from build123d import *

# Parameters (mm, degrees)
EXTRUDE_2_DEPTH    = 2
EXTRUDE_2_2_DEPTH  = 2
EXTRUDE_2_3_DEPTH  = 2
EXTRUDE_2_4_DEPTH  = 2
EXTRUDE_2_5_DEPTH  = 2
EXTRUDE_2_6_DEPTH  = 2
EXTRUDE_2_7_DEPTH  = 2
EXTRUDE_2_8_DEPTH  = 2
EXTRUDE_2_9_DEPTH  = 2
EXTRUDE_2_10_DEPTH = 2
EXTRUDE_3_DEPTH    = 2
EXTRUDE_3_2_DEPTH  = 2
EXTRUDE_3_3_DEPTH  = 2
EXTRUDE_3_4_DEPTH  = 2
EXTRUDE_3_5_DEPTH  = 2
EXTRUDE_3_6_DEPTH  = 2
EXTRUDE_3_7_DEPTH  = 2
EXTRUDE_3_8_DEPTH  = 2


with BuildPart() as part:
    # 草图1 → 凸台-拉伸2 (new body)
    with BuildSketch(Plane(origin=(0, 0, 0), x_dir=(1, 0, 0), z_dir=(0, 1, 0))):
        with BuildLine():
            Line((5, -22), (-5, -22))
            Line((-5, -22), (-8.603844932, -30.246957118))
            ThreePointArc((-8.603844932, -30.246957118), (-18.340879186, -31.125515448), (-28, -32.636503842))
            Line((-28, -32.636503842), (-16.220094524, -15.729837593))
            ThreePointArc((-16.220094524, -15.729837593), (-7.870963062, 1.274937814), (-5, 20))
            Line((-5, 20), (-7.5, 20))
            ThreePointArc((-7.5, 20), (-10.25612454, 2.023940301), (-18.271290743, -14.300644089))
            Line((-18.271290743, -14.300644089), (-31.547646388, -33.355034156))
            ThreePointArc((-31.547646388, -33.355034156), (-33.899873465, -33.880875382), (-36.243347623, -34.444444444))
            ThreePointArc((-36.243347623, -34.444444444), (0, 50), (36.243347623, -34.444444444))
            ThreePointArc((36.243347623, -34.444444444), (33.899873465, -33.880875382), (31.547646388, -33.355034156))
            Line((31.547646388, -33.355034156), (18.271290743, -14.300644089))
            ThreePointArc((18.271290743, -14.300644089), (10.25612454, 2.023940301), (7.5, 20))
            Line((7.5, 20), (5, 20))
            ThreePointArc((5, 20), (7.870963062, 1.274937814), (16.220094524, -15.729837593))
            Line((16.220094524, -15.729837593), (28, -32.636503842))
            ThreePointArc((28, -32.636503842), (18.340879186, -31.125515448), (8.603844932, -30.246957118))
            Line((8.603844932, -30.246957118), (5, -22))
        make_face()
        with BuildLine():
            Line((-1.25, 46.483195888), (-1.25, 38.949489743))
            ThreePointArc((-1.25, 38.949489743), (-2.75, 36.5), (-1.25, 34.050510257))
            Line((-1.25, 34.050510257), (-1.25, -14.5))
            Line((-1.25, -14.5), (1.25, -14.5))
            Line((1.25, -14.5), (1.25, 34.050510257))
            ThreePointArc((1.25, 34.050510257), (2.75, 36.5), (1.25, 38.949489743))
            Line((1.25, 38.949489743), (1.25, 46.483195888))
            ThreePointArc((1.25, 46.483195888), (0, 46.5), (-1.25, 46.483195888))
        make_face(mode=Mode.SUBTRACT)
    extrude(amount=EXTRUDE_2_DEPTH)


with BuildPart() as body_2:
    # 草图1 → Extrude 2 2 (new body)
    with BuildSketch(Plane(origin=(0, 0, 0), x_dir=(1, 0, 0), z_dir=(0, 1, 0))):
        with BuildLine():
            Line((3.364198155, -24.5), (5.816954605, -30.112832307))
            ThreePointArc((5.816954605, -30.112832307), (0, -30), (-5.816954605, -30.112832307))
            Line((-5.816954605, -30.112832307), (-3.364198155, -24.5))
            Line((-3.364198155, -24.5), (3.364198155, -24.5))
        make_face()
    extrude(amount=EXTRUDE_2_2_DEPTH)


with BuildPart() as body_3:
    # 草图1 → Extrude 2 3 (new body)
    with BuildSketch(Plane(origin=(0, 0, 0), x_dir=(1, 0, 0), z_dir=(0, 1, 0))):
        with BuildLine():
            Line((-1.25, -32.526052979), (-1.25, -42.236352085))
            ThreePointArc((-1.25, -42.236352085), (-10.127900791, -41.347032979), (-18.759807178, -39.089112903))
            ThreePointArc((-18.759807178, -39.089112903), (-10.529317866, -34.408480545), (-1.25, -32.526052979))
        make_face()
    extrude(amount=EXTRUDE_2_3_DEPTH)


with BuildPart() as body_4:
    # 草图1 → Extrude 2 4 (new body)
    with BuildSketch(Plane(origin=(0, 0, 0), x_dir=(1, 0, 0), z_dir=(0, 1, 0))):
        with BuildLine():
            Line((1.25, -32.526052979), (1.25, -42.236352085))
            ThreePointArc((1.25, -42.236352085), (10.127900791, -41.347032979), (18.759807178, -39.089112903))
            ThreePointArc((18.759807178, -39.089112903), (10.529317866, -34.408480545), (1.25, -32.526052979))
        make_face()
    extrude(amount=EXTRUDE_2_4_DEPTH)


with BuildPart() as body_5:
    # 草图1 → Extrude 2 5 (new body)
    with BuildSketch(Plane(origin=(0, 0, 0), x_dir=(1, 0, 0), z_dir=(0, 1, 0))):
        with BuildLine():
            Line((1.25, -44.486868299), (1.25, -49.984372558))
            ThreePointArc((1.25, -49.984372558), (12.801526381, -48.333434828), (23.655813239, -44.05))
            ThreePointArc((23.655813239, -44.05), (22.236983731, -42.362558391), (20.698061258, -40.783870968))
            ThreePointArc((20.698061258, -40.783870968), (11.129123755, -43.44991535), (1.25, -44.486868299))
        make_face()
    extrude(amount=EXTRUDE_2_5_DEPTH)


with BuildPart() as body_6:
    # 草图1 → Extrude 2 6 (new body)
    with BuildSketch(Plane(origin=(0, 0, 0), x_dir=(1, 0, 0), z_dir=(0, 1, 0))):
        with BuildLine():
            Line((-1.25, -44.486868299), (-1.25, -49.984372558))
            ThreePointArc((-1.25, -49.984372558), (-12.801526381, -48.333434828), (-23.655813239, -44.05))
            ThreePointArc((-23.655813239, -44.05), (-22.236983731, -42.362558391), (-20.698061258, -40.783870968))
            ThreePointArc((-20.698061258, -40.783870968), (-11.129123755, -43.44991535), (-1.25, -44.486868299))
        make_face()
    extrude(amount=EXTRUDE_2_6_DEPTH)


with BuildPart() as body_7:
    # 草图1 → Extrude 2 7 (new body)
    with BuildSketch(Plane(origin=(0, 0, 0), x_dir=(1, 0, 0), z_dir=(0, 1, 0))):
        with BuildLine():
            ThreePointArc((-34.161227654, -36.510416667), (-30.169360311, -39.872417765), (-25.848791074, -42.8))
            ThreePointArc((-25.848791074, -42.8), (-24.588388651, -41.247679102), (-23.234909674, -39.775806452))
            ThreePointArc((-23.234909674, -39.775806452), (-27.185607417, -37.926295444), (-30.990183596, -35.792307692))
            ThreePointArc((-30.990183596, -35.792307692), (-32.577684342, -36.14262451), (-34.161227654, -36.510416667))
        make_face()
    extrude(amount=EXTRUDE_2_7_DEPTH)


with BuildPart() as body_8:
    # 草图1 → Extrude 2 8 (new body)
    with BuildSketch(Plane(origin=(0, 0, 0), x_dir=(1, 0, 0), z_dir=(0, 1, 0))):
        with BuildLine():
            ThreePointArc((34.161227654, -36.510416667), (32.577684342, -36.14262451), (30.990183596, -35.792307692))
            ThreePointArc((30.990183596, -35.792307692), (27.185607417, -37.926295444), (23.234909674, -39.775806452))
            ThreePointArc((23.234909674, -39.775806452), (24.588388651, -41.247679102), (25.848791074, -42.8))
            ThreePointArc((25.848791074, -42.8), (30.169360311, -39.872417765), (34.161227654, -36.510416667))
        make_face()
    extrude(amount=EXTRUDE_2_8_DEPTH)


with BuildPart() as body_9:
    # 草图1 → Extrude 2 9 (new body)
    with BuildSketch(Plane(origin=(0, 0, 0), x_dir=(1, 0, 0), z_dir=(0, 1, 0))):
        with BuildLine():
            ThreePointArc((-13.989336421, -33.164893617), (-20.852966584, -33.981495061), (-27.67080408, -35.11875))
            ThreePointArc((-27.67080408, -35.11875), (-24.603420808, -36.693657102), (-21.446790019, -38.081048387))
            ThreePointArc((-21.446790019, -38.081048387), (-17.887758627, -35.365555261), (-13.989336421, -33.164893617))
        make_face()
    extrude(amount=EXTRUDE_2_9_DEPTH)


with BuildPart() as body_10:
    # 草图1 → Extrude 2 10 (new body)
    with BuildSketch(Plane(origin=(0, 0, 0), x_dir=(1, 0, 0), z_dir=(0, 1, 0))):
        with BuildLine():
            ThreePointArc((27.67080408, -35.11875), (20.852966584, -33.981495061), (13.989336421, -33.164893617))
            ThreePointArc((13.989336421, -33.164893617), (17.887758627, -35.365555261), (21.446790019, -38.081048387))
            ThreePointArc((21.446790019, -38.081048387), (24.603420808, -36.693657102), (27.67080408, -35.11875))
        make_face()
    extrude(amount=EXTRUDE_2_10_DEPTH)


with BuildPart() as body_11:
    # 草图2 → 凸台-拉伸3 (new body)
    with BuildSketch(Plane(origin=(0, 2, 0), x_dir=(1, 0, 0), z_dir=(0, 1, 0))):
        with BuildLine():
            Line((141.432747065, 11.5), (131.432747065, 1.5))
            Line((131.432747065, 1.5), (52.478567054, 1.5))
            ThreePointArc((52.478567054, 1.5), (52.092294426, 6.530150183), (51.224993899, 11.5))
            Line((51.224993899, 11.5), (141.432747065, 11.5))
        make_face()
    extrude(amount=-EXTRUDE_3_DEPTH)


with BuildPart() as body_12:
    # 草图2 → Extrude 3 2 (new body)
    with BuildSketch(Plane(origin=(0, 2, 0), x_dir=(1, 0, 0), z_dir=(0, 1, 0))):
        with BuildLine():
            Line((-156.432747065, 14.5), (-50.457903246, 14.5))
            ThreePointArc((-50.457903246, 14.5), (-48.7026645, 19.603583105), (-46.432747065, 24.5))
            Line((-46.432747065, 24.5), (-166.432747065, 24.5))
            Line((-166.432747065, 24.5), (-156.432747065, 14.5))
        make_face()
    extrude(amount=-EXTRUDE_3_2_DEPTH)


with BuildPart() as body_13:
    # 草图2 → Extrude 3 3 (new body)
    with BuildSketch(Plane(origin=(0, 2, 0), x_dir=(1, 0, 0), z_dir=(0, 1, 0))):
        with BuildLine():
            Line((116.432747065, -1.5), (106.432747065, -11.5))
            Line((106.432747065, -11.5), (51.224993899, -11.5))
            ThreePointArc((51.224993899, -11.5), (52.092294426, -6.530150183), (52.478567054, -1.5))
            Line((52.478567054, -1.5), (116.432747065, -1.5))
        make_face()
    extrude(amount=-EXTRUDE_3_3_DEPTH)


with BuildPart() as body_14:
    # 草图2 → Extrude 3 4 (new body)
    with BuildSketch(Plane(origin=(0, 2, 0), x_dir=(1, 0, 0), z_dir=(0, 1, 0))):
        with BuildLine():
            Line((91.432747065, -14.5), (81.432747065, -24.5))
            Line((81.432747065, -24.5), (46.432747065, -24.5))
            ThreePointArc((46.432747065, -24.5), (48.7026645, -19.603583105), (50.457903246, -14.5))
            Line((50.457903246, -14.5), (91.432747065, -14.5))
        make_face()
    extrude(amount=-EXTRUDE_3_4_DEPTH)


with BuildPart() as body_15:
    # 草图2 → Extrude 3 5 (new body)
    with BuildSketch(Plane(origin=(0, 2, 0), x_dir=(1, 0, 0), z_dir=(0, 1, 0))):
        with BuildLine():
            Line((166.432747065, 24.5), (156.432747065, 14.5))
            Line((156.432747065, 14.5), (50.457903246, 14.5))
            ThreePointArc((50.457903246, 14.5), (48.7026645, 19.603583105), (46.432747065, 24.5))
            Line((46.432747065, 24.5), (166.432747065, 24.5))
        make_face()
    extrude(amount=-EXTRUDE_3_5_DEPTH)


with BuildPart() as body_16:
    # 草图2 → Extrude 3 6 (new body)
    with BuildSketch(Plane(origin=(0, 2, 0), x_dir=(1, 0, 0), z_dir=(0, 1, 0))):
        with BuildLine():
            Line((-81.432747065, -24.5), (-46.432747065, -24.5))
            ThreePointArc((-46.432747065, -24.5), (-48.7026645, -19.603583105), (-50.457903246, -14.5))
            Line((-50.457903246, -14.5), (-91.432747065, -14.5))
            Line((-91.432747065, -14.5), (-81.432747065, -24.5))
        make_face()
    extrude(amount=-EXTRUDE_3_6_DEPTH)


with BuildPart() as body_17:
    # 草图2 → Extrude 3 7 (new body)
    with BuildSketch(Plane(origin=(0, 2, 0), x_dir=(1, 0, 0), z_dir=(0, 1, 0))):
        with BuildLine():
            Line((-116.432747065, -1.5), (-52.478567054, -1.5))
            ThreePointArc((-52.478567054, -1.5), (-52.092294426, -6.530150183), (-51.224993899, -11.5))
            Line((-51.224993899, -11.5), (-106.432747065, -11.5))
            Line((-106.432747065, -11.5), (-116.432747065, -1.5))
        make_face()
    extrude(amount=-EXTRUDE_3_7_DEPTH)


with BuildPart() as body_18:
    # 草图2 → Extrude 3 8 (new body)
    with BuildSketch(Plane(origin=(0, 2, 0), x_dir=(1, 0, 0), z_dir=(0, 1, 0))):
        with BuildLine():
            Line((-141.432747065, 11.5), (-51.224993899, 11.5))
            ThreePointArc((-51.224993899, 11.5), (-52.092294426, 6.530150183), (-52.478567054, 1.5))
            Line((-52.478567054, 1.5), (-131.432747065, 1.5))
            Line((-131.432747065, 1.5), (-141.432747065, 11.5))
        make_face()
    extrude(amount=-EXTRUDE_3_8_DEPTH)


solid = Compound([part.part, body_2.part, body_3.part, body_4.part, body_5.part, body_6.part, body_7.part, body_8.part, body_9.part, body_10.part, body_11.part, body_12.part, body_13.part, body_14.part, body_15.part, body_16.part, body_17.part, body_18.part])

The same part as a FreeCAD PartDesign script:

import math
import FreeCAD as App
import Part
import Sketcher
Q = App.Units.Quantity

doc = App.newDocument("Part")
body = doc.addObject("PartDesign::Body", "Body")

sketch1 = body.newObject("Sketcher::SketchObject", "Sketch")
sketch1.AttachmentSupport = (doc.getObject("XZ_Plane"), [""])
sketch1.MapMode = "FlatFace"
sketch1.addGeometry([
    Part.LineSegment(App.Vector(-5, 22, 0), App.Vector(5, 22, 0)),
    Part.LineSegment(App.Vector(5, 22, 0), App.Vector(8.6, 30.2, 0)),
    Part.ArcOfCircle(Part.Circle(App.Vector(0, 180, 0), App.Vector(0, 0, 1), 150), math.radians(-86.71), math.radians(-79.24)),
    Part.LineSegment(App.Vector(28, 32.6, 0), App.Vector(16.2, 15.7, 0)),
    Part.ArcOfCircle(Part.Circle(App.Vector(67.5, -20, 0), App.Vector(0, 0, 1), 62.5), math.radians(145), math.radians(180)),
    Part.LineSegment(App.Vector(5, -20, 0), App.Vector(7.5, -20, 0)),
    Part.ArcOfCircle(Part.Circle(App.Vector(67.5, -20, 0), App.Vector(0, 0, 1), 60), math.radians(145), math.radians(180)),
    Part.LineSegment(App.Vector(18.3, 14.3, 0), App.Vector(31.5, 33.4, 0)),
    Part.ArcOfCircle(Part.Circle(App.Vector(0, 180, 0), App.Vector(0, 0, 1), 150), math.radians(-77.86), math.radians(-76.02)),
    Part.ArcOfCircle(Part.Circle(App.Vector(0, 0, 0), App.Vector(0, 0, 1), 50), math.radians(136), math.radians(404)),
    Part.ArcOfCircle(Part.Circle(App.Vector(0, 180, 0), App.Vector(0, 0, 1), 150), math.radians(-103.98), math.radians(-102.14)),
    Part.LineSegment(App.Vector(-31.5, 33.4, 0), App.Vector(-18.3, 14.3, 0)),
    Part.ArcOfCircle(Part.Circle(App.Vector(-67.5, -20, 0), App.Vector(0, 0, 1), 60), math.radians(0), math.radians(35)),
    Part.LineSegment(App.Vector(-7.5, -20, 0), App.Vector(-5, -20, 0)),
    Part.ArcOfCircle(Part.Circle(App.Vector(-67.5, -20, 0), App.Vector(0, 0, 1), 62.5), math.radians(0), math.radians(35)),
    Part.LineSegment(App.Vector(-16.2, 15.7, 0), App.Vector(-28, 32.6, 0)),
    Part.ArcOfCircle(Part.Circle(App.Vector(0, 180, 0), App.Vector(0, 0, 1), 150), math.radians(-100.76), math.radians(-93.29)),
    Part.LineSegment(App.Vector(-8.6, 30.2, 0), App.Vector(-5, 22, 0)),
    Part.ArcOfCircle(Part.Circle(App.Vector(0, 0, 0), App.Vector(0, 0, 1), 46.5), math.radians(-91.54), math.radians(-88.46)),
    Part.LineSegment(App.Vector(1.2, -46.5, 0), App.Vector(1.2, -38.9, 0)),
    Part.ArcOfCircle(Part.Circle(App.Vector(0, -36.5, 0), App.Vector(0, 0, 1), 2.8), math.radians(-63), math.radians(63)),
    Part.LineSegment(App.Vector(1.2, -34.1, 0), App.Vector(1.2, 14.5, 0)),
    Part.LineSegment(App.Vector(1.2, 14.5, 0), App.Vector(-1.2, 14.5, 0)),
    Part.LineSegment(App.Vector(-1.2, 14.5, 0), App.Vector(-1.2, -34.1, 0)),
    Part.ArcOfCircle(Part.Circle(App.Vector(0, -36.5, 0), App.Vector(0, 0, 1), 2.8), math.radians(117), math.radians(243)),
    Part.LineSegment(App.Vector(-1.2, -38.9, 0), App.Vector(-1.2, -46.5, 0)),
], False)
sketch1.addConstraint([
    Sketcher.Constraint("Coincident", 0, 2, 1, 1),
    Sketcher.Constraint("Coincident", 1, 2, 2, 1),
    Sketcher.Constraint("Coincident", 2, 2, 3, 1),
    Sketcher.Constraint("Tangent", 3, 2, 4, 1),
    Sketcher.Constraint("Coincident", 4, 2, 5, 1),
    Sketcher.Constraint("Coincident", 5, 2, 6, 2),
    Sketcher.Constraint("Tangent", 6, 1, 7, 1),
    Sketcher.Constraint("Coincident", 7, 2, 8, 1),
    Sketcher.Constraint("Coincident", 8, 2, 9, 2),
    Sketcher.Constraint("Coincident", 9, 1, 10, 1),
    Sketcher.Constraint("Coincident", 10, 2, 11, 1),
    Sketcher.Constraint("Tangent", 11, 2, 12, 2),
    Sketcher.Constraint("Coincident", 12, 1, 13, 1),
    Sketcher.Constraint("Coincident", 13, 2, 14, 1),
    Sketcher.Constraint("Tangent", 14, 2, 15, 1),
    Sketcher.Constraint("Coincident", 15, 2, 16, 1),
    Sketcher.Constraint("Coincident", 16, 2, 17, 1),
    Sketcher.Constraint("Coincident", 17, 2, 0, 1),
    Sketcher.Constraint("Coincident", 18, 2, 19, 1),
    Sketcher.Constraint("Coincident", 19, 2, 20, 1),
    Sketcher.Constraint("Coincident", 20, 2, 21, 1),
    Sketcher.Constraint("Coincident", 21, 2, 22, 1),
    Sketcher.Constraint("Coincident", 22, 2, 23, 1),
    Sketcher.Constraint("Coincident", 23, 2, 24, 1),
    Sketcher.Constraint("Coincident", 24, 2, 25, 1),
    Sketcher.Constraint("Coincident", 25, 2, 18, 1),
    Sketcher.Constraint("Horizontal", 0),
    Sketcher.Constraint("Horizontal", 5),
    Sketcher.Constraint("Horizontal", 13),
    Sketcher.Constraint("Vertical", 19),
    Sketcher.Constraint("Vertical", 21),
    Sketcher.Constraint("Horizontal", 22),
    Sketcher.Constraint("Vertical", 23),
    Sketcher.Constraint("Vertical", 25),
    Sketcher.Constraint("Coincident", 9, 3, -1, 1),
    Sketcher.Constraint("Coincident", 18, 3, -1, 1),
    Sketcher.Constraint("Coincident", 6, 3, 4, 3),
    Sketcher.Constraint("Coincident", 8, 3, 2, 3),
    Sketcher.Constraint("Coincident", 10, 3, 2, 3),
    Sketcher.Constraint("Coincident", 14, 3, 12, 3),
    Sketcher.Constraint("Coincident", 16, 3, 2, 3),
    Sketcher.Constraint("Coincident", 24, 3, 20, 3),
    Sketcher.Constraint("Equal", 2, 8),
    Sketcher.Constraint("Equal", 8, 10),
    Sketcher.Constraint("Equal", 6, 12),
    Sketcher.Constraint("Equal", 4, 14),
    Sketcher.Constraint("Equal", 10, 16),
    Sketcher.Constraint("Equal", 20, 24),
    Sketcher.Constraint("Symmetric", 4, 3, 12, 3, -2),
    Sketcher.Constraint("Symmetric", 7, 2, 10, 2, -2),
    Sketcher.Constraint("Symmetric", 20, 2, 23, 2, -2),
    Sketcher.Constraint("Parallel", 3, 7),
    Sketcher.Constraint("Parallel", 11, 15),
    Sketcher.Constraint("Horizontal", 14, 3, 4, 2),
    Sketcher.Constraint("Horizontal", 5, 2, 12, 1),
    Sketcher.Constraint("Horizontal", 1, 2, 16, 2),
    Sketcher.Constraint("Horizontal", 19, 2, 24, 2),
    Sketcher.Constraint("Vertical", 0, 2, 4, 2),
    Sketcher.Constraint("Vertical", 13, 2, 17, 2),
    Sketcher.Constraint("Vertical", 19, 2, 20, 2),
    Sketcher.Constraint("Equal", 13, 22),
    Sketcher.Constraint("Radius", 2, Q("150 mm")),
    Sketcher.Constraint("Radius", 6, Q("60 mm")),
    Sketcher.Constraint("Radius", 9, Q("50 mm")),
    Sketcher.Constraint("Radius", 4, Q("62.5 mm")),
    Sketcher.Constraint("Radius", 18, Q("46.499999 mm")),
    Sketcher.Constraint("DistanceX", 0, 1, 0, 2, Q("10 mm")),
    Sketcher.Constraint("Radius", 20, Q("2.75 mm")),
    Sketcher.Constraint("Distance", 1, Q("9 mm")),
    Sketcher.Constraint("DistanceY", -1, 1, 2, 3, Q("180 mm")),
    Sketcher.Constraint("DistanceY", 4, 3, -1, 1, Q("20 mm")),
    Sketcher.Constraint("DistanceY", -1, 1, 0, 2, Q("22 mm")),
    Sketcher.Constraint("DistanceX", 15, 2, -1, 1, Q("28 mm")),
    Sketcher.Constraint("DistanceY", 20, 3, -1, 1, Q("36.5 mm")),
    Sketcher.Constraint("DistanceY", -1, 1, 21, 2, Q("14.5 mm")),
])
pad1 = body.newObject("PartDesign::Pad", "Pad")
pad1.Profile = sketch1
pad1.Length = 2
pad1.Reversed = True
body2 = doc.addObject("PartDesign::Body", "Body001")

sketch2 = body2.newObject("Sketcher::SketchObject", "Sketch001")
sketch2.AttachmentSupport = (doc.getObject("XZ_Plane001"), [""])
sketch2.MapMode = "FlatFace"
sketch2.addGeometry([
    Part.LineSegment(App.Vector(6, 30, 0), App.Vector(3, 24, 0)),
    Part.LineSegment(App.Vector(3, 24, 0), App.Vector(-3, 24, 0)),
    Part.LineSegment(App.Vector(-3, 24, 0), App.Vector(-6, 30, 0)),
    Part.ArcOfCircle(Part.Circle(App.Vector(0, 180, 0), App.Vector(0, 0, 1), 150), math.radians(-92.22), math.radians(-87.78)),
], False)
sketch2.addConstraint([
    Sketcher.Constraint("Coincident", 0, 2, 1, 1),
    Sketcher.Constraint("Coincident", 1, 2, 2, 1),
    Sketcher.Constraint("Coincident", 2, 2, 3, 1),
    Sketcher.Constraint("Coincident", 3, 2, 0, 1),
    Sketcher.Constraint("Horizontal", 1),
    Sketcher.Constraint("Symmetric", 2, 2, 3, 2, -2),
    Sketcher.Constraint("Equal", 0, 2),
    Sketcher.Constraint("Radius", 3, Q("150 mm")),
    Sketcher.Constraint("DistanceY", -1, 1, 3, 3, Q("180 mm")),
    Sketcher.Constraint("DistanceY", -1, 1, 0, 2, Q("24.5 mm")),
    Sketcher.Constraint("DistanceX", -1, 1, 0, 2, Q("3.364198 mm")),
    Sketcher.Constraint("Distance", 0, Q("6.125349 mm")),
])
pad2 = body2.newObject("PartDesign::Pad", "Pad001")
pad2.Profile = sketch2
pad2.Length = 2
pad2.Reversed = True
body3 = doc.addObject("PartDesign::Body", "Body002")

sketch3 = body3.newObject("Sketcher::SketchObject", "Sketch002")
sketch3.AttachmentSupport = (doc.getObject("XZ_Plane002"), [""])
sketch3.MapMode = "FlatFace"
sketch3.addGeometry([
    Part.LineSegment(App.Vector(-1, 42, 0), App.Vector(-1, 33, 0)),
    Part.ArcOfCircle(Part.Circle(App.Vector(0, 63, 0), App.Vector(0, 0, 1), 30), math.radians(-129), math.radians(-92)),
    Part.ArcOfCircle(Part.Circle(App.Vector(0, -15, 0), App.Vector(0, 0, 1), 57), math.radians(91.25), math.radians(109.13)),
], False)
sketch3.addConstraint([
    Sketcher.Constraint("Coincident", 0, 2, 1, 2),
    Sketcher.Constraint("Coincident", 1, 1, 2, 2),
    Sketcher.Constraint("Coincident", 2, 1, 0, 1),
    Sketcher.Constraint("Vertical", 0),
    Sketcher.Constraint("PointOnObject", 1, 3, -2),
    Sketcher.Constraint("PointOnObject", 2, 3, -2),
    Sketcher.Constraint("Radius", 1, Q("30 mm")),
    Sketcher.Constraint("Radius", 2, Q("57.25 mm")),
    Sketcher.Constraint("DistanceY", 2, 3, -1, 1, Q("15 mm")),
    Sketcher.Constraint("DistanceY", -1, 1, 1, 3, Q("62.5 mm")),
    Sketcher.Constraint("DistanceX", 0, 2, -1, 1, Q("1.25 mm")),
])
pad3 = body3.newObject("PartDesign::Pad", "Pad002")
pad3.Profile = sketch3
pad3.Length = 2
pad3.Reversed = True
body4 = doc.addObject("PartDesign::Body", "Body003")

sketch4 = body4.newObject("Sketcher::SketchObject", "Sketch003")
sketch4.AttachmentSupport = (doc.getObject("XZ_Plane003"), [""])
sketch4.MapMode = "FlatFace"
sketch4.addGeometry([
    Part.LineSegment(App.Vector(1, 33, 0), App.Vector(1, 42, 0)),
    Part.ArcOfCircle(Part.Circle(App.Vector(0, -15, 0), App.Vector(0, 0, 1), 57), math.radians(70.87), math.radians(88.75)),
    Part.ArcOfCircle(Part.Circle(App.Vector(0, 63, 0), App.Vector(0, 0, 1), 30), math.radians(-88), math.radians(-51)),
], False)
sketch4.addConstraint([
    Sketcher.Constraint("Coincident", 0, 2, 1, 2),
    Sketcher.Constraint("Coincident", 1, 1, 2, 2),
    Sketcher.Constraint("Coincident", 2, 1, 0, 1),
    Sketcher.Constraint("Vertical", 0),
    Sketcher.Constraint("PointOnObject", 1, 3, -2),
    Sketcher.Constraint("PointOnObject", 2, 3, -2),
    Sketcher.Constraint("Radius", 2, Q("30 mm")),
    Sketcher.Constraint("Radius", 1, Q("57.25 mm")),
    Sketcher.Constraint("DistanceY", 1, 3, -1, 1, Q("15 mm")),
    Sketcher.Constraint("DistanceY", -1, 1, 2, 3, Q("62.5 mm")),
    Sketcher.Constraint("DistanceX", -1, 1, 0, 2, Q("1.25 mm")),
])
pad4 = body4.newObject("PartDesign::Pad", "Pad003")
pad4.Profile = sketch4
pad4.Length = 2
pad4.Reversed = True
body5 = doc.addObject("PartDesign::Body", "Body004")

sketch5 = body5.newObject("Sketcher::SketchObject", "Sketch004")
sketch5.AttachmentSupport = (doc.getObject("XZ_Plane004"), [""])
sketch5.MapMode = "FlatFace"
sketch5.addGeometry([
    Part.LineSegment(App.Vector(1.2, 44.5, 0), App.Vector(1.2, 50, 0)),
    Part.ArcOfCircle(Part.Circle(App.Vector(0, 0, 0), App.Vector(0, 0, 1), 50), math.radians(62), math.radians(89)),
    Part.ArcOfCircle(Part.Circle(App.Vector(0, 62.5, 0), App.Vector(0, 0, 1), 30), math.radians(-46.38), math.radians(-37.95)),
    Part.ArcOfCircle(Part.Circle(App.Vector(0, -15, 0), App.Vector(0, 0, 1), 59.5), math.radians(69.64), math.radians(88.8)),
], False)
sketch5.addConstraint([
    Sketcher.Constraint("Coincident", 0, 2, 1, 2),
    Sketcher.Constraint("Coincident", 1, 1, 2, 2),
    Sketcher.Constraint("Coincident", 2, 1, 3, 1),
    Sketcher.Constraint("Coincident", 3, 2, 0, 1),
    Sketcher.Constraint("Vertical", 0),
    Sketcher.Constraint("Coincident", 1, 3, -1, 1),
    Sketcher.Constraint("PointOnObject", 2, 3, -2),
    Sketcher.Constraint("PointOnObject", 3, 3, -2),
    Sketcher.Constraint("Radius", 1, Q("50 mm")),
    Sketcher.Constraint("Radius", 2, Q("30 mm")),
    Sketcher.Constraint("Radius", 3, Q("59.5 mm")),
    Sketcher.Constraint("DistanceY", 3, 3, -1, 1, Q("15 mm")),
    Sketcher.Constraint("DistanceY", -1, 1, 2, 3, Q("62.5 mm")),
    Sketcher.Constraint("DistanceX", -1, 1, 0, 2, Q("1.25 mm")),
])
pad5 = body5.newObject("PartDesign::Pad", "Pad004")
pad5.Profile = sketch5
pad5.Length = 2
pad5.Reversed = True
body6 = doc.addObject("PartDesign::Body", "Body005")

sketch6 = body6.newObject("Sketcher::SketchObject", "Sketch005")
sketch6.AttachmentSupport = (doc.getObject("XZ_Plane005"), [""])
sketch6.MapMode = "FlatFace"
sketch6.addGeometry([
    Part.LineSegment(App.Vector(-1.2, 50, 0), App.Vector(-1.2, 44.5, 0)),
    Part.ArcOfCircle(Part.Circle(App.Vector(0, -15, 0), App.Vector(0, 0, 1), 59.5), math.radians(91.2), math.radians(110.36)),
    Part.ArcOfCircle(Part.Circle(App.Vector(0, 62.5, 0), App.Vector(0, 0, 1), 30), math.radians(-142.05), math.radians(-133.62)),
    Part.ArcOfCircle(Part.Circle(App.Vector(0, 0, 0), App.Vector(0, 0, 1), 50), math.radians(91), math.radians(118)),
], False)
sketch6.addConstraint([
    Sketcher.Constraint("Coincident", 0, 2, 1, 1),
    Sketcher.Constraint("Coincident", 1, 2, 2, 2),
    Sketcher.Constraint("Coincident", 2, 1, 3, 2),
    Sketcher.Constraint("Coincident", 3, 1, 0, 1),
    Sketcher.Constraint("Vertical", 0),
    Sketcher.Constraint("Coincident", 3, 3, -1, 1),
    Sketcher.Constraint("PointOnObject", 1, 3, -2),
    Sketcher.Constraint("PointOnObject", 2, 3, -2),
    Sketcher.Constraint("Radius", 2, Q("30 mm")),
    Sketcher.Constraint("Radius", 3, Q("50 mm")),
    Sketcher.Constraint("Radius", 1, Q("59.5 mm")),
    Sketcher.Constraint("DistanceY", 1, 3, -1, 1, Q("15 mm")),
    Sketcher.Constraint("DistanceY", -1, 1, 2, 3, Q("62.5 mm")),
    Sketcher.Constraint("DistanceX", 0, 2, -1, 1, Q("1.25 mm")),
])
pad6 = body6.newObject("PartDesign::Pad", "Pad005")
pad6.Profile = sketch6
pad6.Length = 2
pad6.Reversed = True
body7 = doc.addObject("PartDesign::Body", "Body006")

sketch7 = body7.newObject("Sketcher::SketchObject", "Sketch006")
sketch7.AttachmentSupport = (doc.getObject("XZ_Plane006"), [""])
sketch7.MapMode = "FlatFace"
sketch7.addGeometry([
    Part.ArcOfCircle(Part.Circle(App.Vector(0, 0, 0), App.Vector(0, 0, 1), 50), math.radians(121.13), math.radians(133.1)),
    Part.ArcOfCircle(Part.Circle(App.Vector(0, 62.5, 0), App.Vector(0, 0, 1), 32.5), math.radians(-142.69), math.radians(-135.64)),
    Part.ArcOfCircle(Part.Circle(App.Vector(0, -15, 0), App.Vector(0, 0, 1), 59.5), math.radians(112.99), math.radians(121.39)),
    Part.ArcOfCircle(Part.Circle(App.Vector(0, 180, 0), App.Vector(0, 0, 1), 147.5), math.radians(-103.39), math.radians(-102.13)),
], False)
sketch7.addConstraint([
    Sketcher.Constraint("Coincident", 0, 1, 1, 1),
    Sketcher.Constraint("Coincident", 1, 2, 2, 1),
    Sketcher.Constraint("Coincident", 2, 2, 3, 2),
    Sketcher.Constraint("Coincident", 3, 1, 0, 2),
    Sketcher.Constraint("Coincident", 0, 3, -1, 1),
    Sketcher.Constraint("PointOnObject", 1, 3, -2),
    Sketcher.Constraint("PointOnObject", 2, 3, -2),
    Sketcher.Constraint("PointOnObject", 3, 3, -2),
    Sketcher.Constraint("Radius", 0, Q("50 mm")),
    Sketcher.Constraint("Radius", 1, Q("32.5 mm")),
    Sketcher.Constraint("Radius", 2, Q("59.5 mm")),
    Sketcher.Constraint("DistanceY", 2, 3, -1, 1, Q("15 mm")),
    Sketcher.Constraint("DistanceY", -1, 1, 1, 3, Q("62.5 mm")),
    Sketcher.Constraint("Radius", 3, Q("147.500003 mm")),
    Sketcher.Constraint("DistanceY", 2, 2, 1, 2, Q("3.983499 mm")),
])
pad7 = body7.newObject("PartDesign::Pad", "Pad006")
pad7.Profile = sketch7
pad7.Length = 2
pad7.Reversed = True
body8 = doc.addObject("PartDesign::Body", "Body007")

sketch8 = body8.newObject("Sketcher::SketchObject", "Sketch007")
sketch8.AttachmentSupport = (doc.getObject("XZ_Plane007"), [""])
sketch8.MapMode = "FlatFace"
sketch8.addGeometry([
    Part.ArcOfCircle(Part.Circle(App.Vector(0, 180, 0), App.Vector(0, 0, 1), 147.5), math.radians(-77.87), math.radians(-76.61)),
    Part.ArcOfCircle(Part.Circle(App.Vector(0, -15, 0), App.Vector(0, 0, 1), 59.5), math.radians(58.61), math.radians(67.01)),
    Part.ArcOfCircle(Part.Circle(App.Vector(0, 62.5, 0), App.Vector(0, 0, 1), 32.5), math.radians(-44.36), math.radians(-37.31)),
    Part.ArcOfCircle(Part.Circle(App.Vector(0, 0, 0), App.Vector(0, 0, 1), 50), math.radians(46.9), math.radians(58.87)),
], False)
sketch8.addConstraint([
    Sketcher.Constraint("Coincident", 0, 1, 1, 1),
    Sketcher.Constraint("Coincident", 1, 2, 2, 1),
    Sketcher.Constraint("Coincident", 2, 2, 3, 2),
    Sketcher.Constraint("Coincident", 3, 1, 0, 2),
    Sketcher.Constraint("Coincident", 3, 3, -1, 1),
    Sketcher.Constraint("PointOnObject", 0, 3, -2),
    Sketcher.Constraint("PointOnObject", 1, 3, -2),
    Sketcher.Constraint("PointOnObject", 2, 3, -2),
    Sketcher.Constraint("Radius", 3, Q("50 mm")),
    Sketcher.Constraint("Radius", 1, Q("59.5 mm")),
    Sketcher.Constraint("Radius", 2, Q("32.5 mm")),
    Sketcher.Constraint("DistanceY", 1, 3, -1, 1, Q("15 mm")),
    Sketcher.Constraint("DistanceY", -1, 1, 2, 3, Q("62.5 mm")),
    Sketcher.Constraint("Radius", 0, Q("147.500003 mm")),
    Sketcher.Constraint("DistanceY", 0, 1, 1, 2, Q("3.983499 mm")),
])
pad8 = body8.newObject("PartDesign::Pad", "Pad007")
pad8.Profile = sketch8
pad8.Length = 2
pad8.Reversed = True
body9 = doc.addObject("PartDesign::Body", "Body008")

sketch9 = body9.newObject("Sketcher::SketchObject", "Sketch008")
sketch9.AttachmentSupport = (doc.getObject("XZ_Plane008"), [""])
sketch9.MapMode = "FlatFace"
sketch9.addGeometry([
    Part.ArcOfCircle(Part.Circle(App.Vector(0, 180, 0), App.Vector(0, 0, 1), 148), math.radians(-100.81), math.radians(-95.44)),
    Part.ArcOfCircle(Part.Circle(App.Vector(0, -15, 0), App.Vector(0, 0, 1), 57), math.radians(112), math.radians(118.9)),
    Part.ArcOfCircle(Part.Circle(App.Vector(0, 63, 0), App.Vector(0, 0, 1), 33), math.radians(-131.29), math.radians(-115.5)),
], False)
sketch9.addConstraint([
    Sketcher.Constraint("Coincident", 0, 1, 1, 2),
    Sketcher.Constraint("Coincident", 1, 1, 2, 1),
    Sketcher.Constraint("Coincident", 2, 2, 0, 2),
    Sketcher.Constraint("PointOnObject", 0, 3, -2),
    Sketcher.Constraint("PointOnObject", 1, 3, -2),
    Sketcher.Constraint("PointOnObject", 2, 3, -2),
    Sketcher.Constraint("Radius", 0, Q("147.5 mm")),
    Sketcher.Constraint("Radius", 2, Q("32.5 mm")),
    Sketcher.Constraint("Radius", 1, Q("57.25 mm")),
    Sketcher.Constraint("DistanceY", -1, 1, 0, 3, Q("180 mm")),
    Sketcher.Constraint("DistanceY", 1, 3, -1, 1, Q("15 mm")),
    Sketcher.Constraint("DistanceY", -1, 1, 2, 3, Q("62.5 mm")),
])
pad9 = body9.newObject("PartDesign::Pad", "Pad008")
pad9.Profile = sketch9
pad9.Length = 2
pad9.Reversed = True
body10 = doc.addObject("PartDesign::Body", "Body009")

sketch10 = body10.newObject("Sketcher::SketchObject", "Sketch009")
sketch10.AttachmentSupport = (doc.getObject("XZ_Plane009"), [""])
sketch10.MapMode = "FlatFace"
sketch10.addGeometry([
    Part.ArcOfCircle(Part.Circle(App.Vector(0, 180, 0), App.Vector(0, 0, 1), 148), math.radians(-84.56), math.radians(-79.19)),
    Part.ArcOfCircle(Part.Circle(App.Vector(0, 63, 0), App.Vector(0, 0, 1), 33), math.radians(-64.5), math.radians(-48.71)),
    Part.ArcOfCircle(Part.Circle(App.Vector(0, -15, 0), App.Vector(0, 0, 1), 57), math.radians(61.1), math.radians(68)),
], False)
sketch10.addConstraint([
    Sketcher.Constraint("Coincident", 0, 1, 1, 1),
    Sketcher.Constraint("Coincident", 1, 2, 2, 2),
    Sketcher.Constraint("Coincident", 2, 1, 0, 2),
    Sketcher.Constraint("PointOnObject", 0, 3, -2),
    Sketcher.Constraint("PointOnObject", 1, 3, -2),
    Sketcher.Constraint("PointOnObject", 2, 3, -2),
    Sketcher.Constraint("Radius", 0, Q("147.5 mm")),
    Sketcher.Constraint("Radius", 1, Q("32.5 mm")),
    Sketcher.Constraint("Radius", 2, Q("57.25 mm")),
    Sketcher.Constraint("DistanceY", -1, 1, 0, 3, Q("180 mm")),
    Sketcher.Constraint("DistanceY", 2, 3, -1, 1, Q("15 mm")),
    Sketcher.Constraint("DistanceY", -1, 1, 1, 3, Q("62.5 mm")),
])
pad10 = body10.newObject("PartDesign::Pad", "Pad009")
pad10.Profile = sketch10
pad10.Length = 2
pad10.Reversed = True
body11 = doc.addObject("PartDesign::Body", "Body010")

sketch11 = body11.newObject("Sketcher::SketchObject", "Sketch010")
sketch11.AttachmentSupport = (doc.getObject("XZ_Plane010"), [""])
sketch11.MapMode = "FlatFace"
sketch11.AttachmentOffset = App.Placement(App.Vector(0, 0, -2), App.Rotation())
sketch11.addGeometry([
    Part.LineSegment(App.Vector(131, -2, 0), App.Vector(141, -12, 0)),
    Part.LineSegment(App.Vector(141, -12, 0), App.Vector(51, -12, 0)),
    Part.ArcOfCircle(Part.Circle(App.Vector(0, 0, 0), App.Vector(0, 0, 1), 53), math.radians(-12.65), math.radians(-1.64)),
    Part.LineSegment(App.Vector(52, -2, 0), App.Vector(131, -2, 0)),
], False)
sketch11.addConstraint([
    Sketcher.Constraint("Coincident", 0, 2, 1, 1),
    Sketcher.Constraint("Coincident", 1, 2, 2, 1),
    Sketcher.Constraint("Coincident", 2, 2, 3, 1),
    Sketcher.Constraint("Coincident", 3, 2, 0, 1),
    Sketcher.Constraint("Horizontal", 1),
    Sketcher.Constraint("Horizontal", 3),
    Sketcher.Constraint("Coincident", 2, 3, -1, 1),
    Sketcher.Constraint("Radius", 2, Q("52.5 mm")),
    Sketcher.Constraint("Angle", 0, Q("-45 deg")),
    Sketcher.Constraint("DistanceY", 1, 2, 2, 2, Q("10 mm")),
    Sketcher.Constraint("DistanceY", 0, 2, -1, 1, Q("11.5 mm")),
    Sketcher.Constraint("DistanceX", 3, 1, 3, 2, Q("78.95418 mm")),
])
pad11 = body11.newObject("PartDesign::Pad", "Pad010")
pad11.Profile = sketch11
pad11.Length = 2
body12 = doc.addObject("PartDesign::Body", "Body011")

sketch12 = body12.newObject("Sketcher::SketchObject", "Sketch011")
sketch12.AttachmentSupport = (doc.getObject("XZ_Plane011"), [""])
sketch12.MapMode = "FlatFace"
sketch12.AttachmentOffset = App.Placement(App.Vector(0, 0, -2), App.Rotation())
sketch12.addGeometry([
    Part.LineSegment(App.Vector(-156, -14, 0), App.Vector(-50, -14, 0)),
    Part.ArcOfCircle(Part.Circle(App.Vector(0, 0, 0), App.Vector(0, 0, 1), 53), math.radians(-163.97), math.radians(-152.18)),
    Part.LineSegment(App.Vector(-46, -24, 0), App.Vector(-166, -24, 0)),
    Part.LineSegment(App.Vector(-166, -24, 0), App.Vector(-156, -14, 0)),
], False)
sketch12.addConstraint([
    Sketcher.Constraint("Coincident", 0, 2, 1, 1),
    Sketcher.Constraint("Coincident", 1, 2, 2, 1),
    Sketcher.Constraint("Coincident", 2, 2, 3, 1),
    Sketcher.Constraint("Coincident", 3, 2, 0, 1),
    Sketcher.Constraint("Horizontal", 0),
    Sketcher.Constraint("Horizontal", 2),
    Sketcher.Constraint("Coincident", 1, 3, -1, 1),
    Sketcher.Constraint("Radius", 1, Q("52.5 mm")),
    Sketcher.Constraint("DistanceX", 2, 2, 2, 1, Q("120 mm")),
    Sketcher.Constraint("Angle", 3, Q("45 deg")),
    Sketcher.Constraint("DistanceY", 1, 2, 0, 2, Q("10 mm")),
    Sketcher.Constraint("DistanceY", 0, 2, -1, 1, Q("14.5 mm")),
])
pad12 = body12.newObject("PartDesign::Pad", "Pad011")
pad12.Profile = sketch12
pad12.Length = 2
body13 = doc.addObject("PartDesign::Body", "Body012")

sketch13 = body13.newObject("Sketcher::SketchObject", "Sketch012")
sketch13.AttachmentSupport = (doc.getObject("XZ_Plane012"), [""])
sketch13.MapMode = "FlatFace"
sketch13.AttachmentOffset = App.Placement(App.Vector(0, 0, -2), App.Rotation())
sketch13.addGeometry([
    Part.LineSegment(App.Vector(106, 12, 0), App.Vector(116, 2, 0)),
    Part.LineSegment(App.Vector(116, 2, 0), App.Vector(52, 2, 0)),
    Part.ArcOfCircle(Part.Circle(App.Vector(0, 0, 0), App.Vector(0, 0, 1), 53), math.radians(1.64), math.radians(12.65)),
    Part.LineSegment(App.Vector(51, 12, 0), App.Vector(106, 12, 0)),
], False)
sketch13.addConstraint([
    Sketcher.Constraint("Coincident", 0, 2, 1, 1),
    Sketcher.Constraint("Coincident", 1, 2, 2, 1),
    Sketcher.Constraint("Coincident", 2, 2, 3, 1),
    Sketcher.Constraint("Coincident", 3, 2, 0, 1),
    Sketcher.Constraint("Horizontal", 1),
    Sketcher.Constraint("Horizontal", 3),
    Sketcher.Constraint("Coincident", 2, 3, -1, 1),
    Sketcher.Constraint("Radius", 2, Q("52.5 mm")),
    Sketcher.Constraint("Angle", 0, Q("-45 deg")),
    Sketcher.Constraint("DistanceY", 1, 2, 2, 2, Q("10 mm")),
    Sketcher.Constraint("DistanceY", -1, 1, 0, 2, Q("1.5 mm")),
    Sketcher.Constraint("DistanceX", 1, 2, 1, 1, Q("63.95418 mm")),
])
pad13 = body13.newObject("PartDesign::Pad", "Pad012")
pad13.Profile = sketch13
pad13.Length = 2
body14 = doc.addObject("PartDesign::Body", "Body013")

sketch14 = body14.newObject("Sketcher::SketchObject", "Sketch013")
sketch14.AttachmentSupport = (doc.getObject("XZ_Plane013"), [""])
sketch14.MapMode = "FlatFace"
sketch14.AttachmentOffset = App.Placement(App.Vector(0, 0, -2), App.Rotation())
sketch14.addGeometry([
    Part.LineSegment(App.Vector(81, 24, 0), App.Vector(91, 14, 0)),
    Part.LineSegment(App.Vector(91, 14, 0), App.Vector(50, 14, 0)),
    Part.ArcOfCircle(Part.Circle(App.Vector(0, 0, 0), App.Vector(0, 0, 1), 53), math.radians(16.03), math.radians(27.82)),
    Part.LineSegment(App.Vector(46, 24, 0), App.Vector(81, 24, 0)),
], False)
sketch14.addConstraint([
    Sketcher.Constraint("Coincident", 0, 2, 1, 1),
    Sketcher.Constraint("Coincident", 1, 2, 2, 1),
    Sketcher.Constraint("Coincident", 2, 2, 3, 1),
    Sketcher.Constraint("Coincident", 3, 2, 0, 1),
    Sketcher.Constraint("Horizontal", 1),
    Sketcher.Constraint("Horizontal", 3),
    Sketcher.Constraint("Coincident", 2, 3, -1, 1),
    Sketcher.Constraint("Radius", 2, Q("52.5 mm")),
    Sketcher.Constraint("DistanceX", 3, 1, 3, 2, Q("35 mm")),
    Sketcher.Constraint("Angle", 0, Q("-45 deg")),
    Sketcher.Constraint("DistanceY", 1, 2, 2, 2, Q("10 mm")),
    Sketcher.Constraint("DistanceY", -1, 1, 0, 2, Q("14.5 mm")),
])
pad14 = body14.newObject("PartDesign::Pad", "Pad013")
pad14.Profile = sketch14
pad14.Length = 2
body15 = doc.addObject("PartDesign::Body", "Body014")

sketch15 = body15.newObject("Sketcher::SketchObject", "Sketch014")
sketch15.AttachmentSupport = (doc.getObject("XZ_Plane014"), [""])
sketch15.MapMode = "FlatFace"
sketch15.AttachmentOffset = App.Placement(App.Vector(0, 0, -2), App.Rotation())
sketch15.addGeometry([
    Part.LineSegment(App.Vector(156, -14, 0), App.Vector(166, -24, 0)),
    Part.LineSegment(App.Vector(166, -24, 0), App.Vector(46, -24, 0)),
    Part.ArcOfCircle(Part.Circle(App.Vector(0, 0, 0), App.Vector(0, 0, 1), 53), math.radians(-27.82), math.radians(-16.03)),
    Part.LineSegment(App.Vector(50, -14, 0), App.Vector(156, -14, 0)),
], False)
sketch15.addConstraint([
    Sketcher.Constraint("Coincident", 0, 2, 1, 1),
    Sketcher.Constraint("Coincident", 1, 2, 2, 1),
    Sketcher.Constraint("Coincident", 2, 2, 3, 1),
    Sketcher.Constraint("Coincident", 3, 2, 0, 1),
    Sketcher.Constraint("Horizontal", 1),
    Sketcher.Constraint("Horizontal", 3),
    Sketcher.Constraint("Coincident", 2, 3, -1, 1),
    Sketcher.Constraint("Radius", 2, Q("52.5 mm")),
    Sketcher.Constraint("DistanceX", 1, 2, 1, 1, Q("120 mm")),
    Sketcher.Constraint("Angle", 0, Q("-45 deg")),
    Sketcher.Constraint("DistanceY", 1, 2, 2, 2, Q("10 mm")),
    Sketcher.Constraint("DistanceY", 0, 2, -1, 1, Q("24.5 mm")),
])
pad15 = body15.newObject("PartDesign::Pad", "Pad014")
pad15.Profile = sketch15
pad15.Length = 2
body16 = doc.addObject("PartDesign::Body", "Body015")

sketch16 = body16.newObject("Sketcher::SketchObject", "Sketch015")
sketch16.AttachmentSupport = (doc.getObject("XZ_Plane015"), [""])
sketch16.MapMode = "FlatFace"
sketch16.AttachmentOffset = App.Placement(App.Vector(0, 0, -2), App.Rotation())
sketch16.addGeometry([
    Part.LineSegment(App.Vector(-81, 24, 0), App.Vector(-46, 24, 0)),
    Part.ArcOfCircle(Part.Circle(App.Vector(0, 0, 0), App.Vector(0, 0, 1), 53), math.radians(152.18), math.radians(163.97)),
    Part.LineSegment(App.Vector(-50, 14, 0), App.Vector(-91, 14, 0)),
    Part.LineSegment(App.Vector(-91, 14, 0), App.Vector(-81, 24, 0)),
], False)
sketch16.addConstraint([
    Sketcher.Constraint("Coincident", 0, 2, 1, 1),
    Sketcher.Constraint("Coincident", 1, 2, 2, 1),
    Sketcher.Constraint("Coincident", 2, 2, 3, 1),
    Sketcher.Constraint("Coincident", 3, 2, 0, 1),
    Sketcher.Constraint("Horizontal", 0),
    Sketcher.Constraint("Horizontal", 2),
    Sketcher.Constraint("Coincident", 1, 3, -1, 1),
    Sketcher.Constraint("Radius", 1, Q("52.5 mm")),
    Sketcher.Constraint("DistanceX", 0, 1, 0, 2, Q("35 mm")),
    Sketcher.Constraint("Angle", 3, Q("45 deg")),
    Sketcher.Constraint("DistanceY", 1, 2, 0, 2, Q("10 mm")),
    Sketcher.Constraint("DistanceY", -1, 1, 0, 2, Q("24.5 mm")),
])
pad16 = body16.newObject("PartDesign::Pad", "Pad015")
pad16.Profile = sketch16
pad16.Length = 2
body17 = doc.addObject("PartDesign::Body", "Body016")

sketch17 = body17.newObject("Sketcher::SketchObject", "Sketch016")
sketch17.AttachmentSupport = (doc.getObject("XZ_Plane016"), [""])
sketch17.MapMode = "FlatFace"
sketch17.AttachmentOffset = App.Placement(App.Vector(0, 0, -2), App.Rotation())
sketch17.addGeometry([
    Part.LineSegment(App.Vector(-52, 2, 0), App.Vector(-116, 2, 0)),
    Part.LineSegment(App.Vector(-116, 2, 0), App.Vector(-106, 12, 0)),
    Part.LineSegment(App.Vector(-106, 12, 0), App.Vector(-51, 12, 0)),
    Part.ArcOfCircle(Part.Circle(App.Vector(0, 0, 0), App.Vector(0, 0, 1), 53), math.radians(167.35), math.radians(178.36)),
], False)
sketch17.addConstraint([
    Sketcher.Constraint("Coincident", 0, 2, 1, 1),
    Sketcher.Constraint("Coincident", 1, 2, 2, 1),
    Sketcher.Constraint("Coincident", 2, 2, 3, 1),
    Sketcher.Constraint("Coincident", 3, 2, 0, 1),
    Sketcher.Constraint("Horizontal", 0),
    Sketcher.Constraint("Horizontal", 2),
    Sketcher.Constraint("Coincident", 3, 3, -1, 1),
    Sketcher.Constraint("Radius", 3, Q("52.5 mm")),
    Sketcher.Constraint("Angle", 1, Q("45 deg")),
    Sketcher.Constraint("DistanceX", 0, 2, 1, 2, Q("10 mm")),
    Sketcher.Constraint("DistanceY", -1, 1, 0, 2, Q("1.5 mm")),
    Sketcher.Constraint("DistanceX", 0, 2, 0, 1, Q("63.95418 mm")),
])
pad17 = body17.newObject("PartDesign::Pad", "Pad016")
pad17.Profile = sketch17
pad17.Length = 2
body18 = doc.addObject("PartDesign::Body", "Body017")

sketch18 = body18.newObject("Sketcher::SketchObject", "Sketch017")
sketch18.AttachmentSupport = (doc.getObject("XZ_Plane017"), [""])
sketch18.MapMode = "FlatFace"
sketch18.AttachmentOffset = App.Placement(App.Vector(0, 0, -2), App.Rotation())
sketch18.addGeometry([
    Part.LineSegment(App.Vector(-51, -12, 0), App.Vector(-141, -12, 0)),
    Part.LineSegment(App.Vector(-141, -12, 0), App.Vector(-131, -2, 0)),
    Part.LineSegment(App.Vector(-131, -2, 0), App.Vector(-52, -2, 0)),
    Part.ArcOfCircle(Part.Circle(App.Vector(0, 0, 0), App.Vector(0, 0, 1), 53), math.radians(-178.36), math.radians(-167.35)),
], False)
sketch18.addConstraint([
    Sketcher.Constraint("Coincident", 0, 2, 1, 1),
    Sketcher.Constraint("Coincident", 1, 2, 2, 1),
    Sketcher.Constraint("Coincident", 2, 2, 3, 1),
    Sketcher.Constraint("Coincident", 3, 2, 0, 1),
    Sketcher.Constraint("Horizontal", 0),
    Sketcher.Constraint("Horizontal", 2),
    Sketcher.Constraint("Coincident", 3, 3, -1, 1),
    Sketcher.Constraint("Radius", 3, Q("52.5 mm")),
    Sketcher.Constraint("Angle", 1, Q("45 deg")),
    Sketcher.Constraint("DistanceX", 0, 2, 1, 2, Q("10 mm")),
    Sketcher.Constraint("DistanceY", 0, 2, -1, 1, Q("11.5 mm")),
    Sketcher.Constraint("DistanceX", 2, 1, 2, 2, Q("78.95418 mm")),
])
pad18 = body18.newObject("PartDesign::Pad", "Pad017")
pad18.Profile = sketch18
pad18.Length = 2

doc.recompute()
